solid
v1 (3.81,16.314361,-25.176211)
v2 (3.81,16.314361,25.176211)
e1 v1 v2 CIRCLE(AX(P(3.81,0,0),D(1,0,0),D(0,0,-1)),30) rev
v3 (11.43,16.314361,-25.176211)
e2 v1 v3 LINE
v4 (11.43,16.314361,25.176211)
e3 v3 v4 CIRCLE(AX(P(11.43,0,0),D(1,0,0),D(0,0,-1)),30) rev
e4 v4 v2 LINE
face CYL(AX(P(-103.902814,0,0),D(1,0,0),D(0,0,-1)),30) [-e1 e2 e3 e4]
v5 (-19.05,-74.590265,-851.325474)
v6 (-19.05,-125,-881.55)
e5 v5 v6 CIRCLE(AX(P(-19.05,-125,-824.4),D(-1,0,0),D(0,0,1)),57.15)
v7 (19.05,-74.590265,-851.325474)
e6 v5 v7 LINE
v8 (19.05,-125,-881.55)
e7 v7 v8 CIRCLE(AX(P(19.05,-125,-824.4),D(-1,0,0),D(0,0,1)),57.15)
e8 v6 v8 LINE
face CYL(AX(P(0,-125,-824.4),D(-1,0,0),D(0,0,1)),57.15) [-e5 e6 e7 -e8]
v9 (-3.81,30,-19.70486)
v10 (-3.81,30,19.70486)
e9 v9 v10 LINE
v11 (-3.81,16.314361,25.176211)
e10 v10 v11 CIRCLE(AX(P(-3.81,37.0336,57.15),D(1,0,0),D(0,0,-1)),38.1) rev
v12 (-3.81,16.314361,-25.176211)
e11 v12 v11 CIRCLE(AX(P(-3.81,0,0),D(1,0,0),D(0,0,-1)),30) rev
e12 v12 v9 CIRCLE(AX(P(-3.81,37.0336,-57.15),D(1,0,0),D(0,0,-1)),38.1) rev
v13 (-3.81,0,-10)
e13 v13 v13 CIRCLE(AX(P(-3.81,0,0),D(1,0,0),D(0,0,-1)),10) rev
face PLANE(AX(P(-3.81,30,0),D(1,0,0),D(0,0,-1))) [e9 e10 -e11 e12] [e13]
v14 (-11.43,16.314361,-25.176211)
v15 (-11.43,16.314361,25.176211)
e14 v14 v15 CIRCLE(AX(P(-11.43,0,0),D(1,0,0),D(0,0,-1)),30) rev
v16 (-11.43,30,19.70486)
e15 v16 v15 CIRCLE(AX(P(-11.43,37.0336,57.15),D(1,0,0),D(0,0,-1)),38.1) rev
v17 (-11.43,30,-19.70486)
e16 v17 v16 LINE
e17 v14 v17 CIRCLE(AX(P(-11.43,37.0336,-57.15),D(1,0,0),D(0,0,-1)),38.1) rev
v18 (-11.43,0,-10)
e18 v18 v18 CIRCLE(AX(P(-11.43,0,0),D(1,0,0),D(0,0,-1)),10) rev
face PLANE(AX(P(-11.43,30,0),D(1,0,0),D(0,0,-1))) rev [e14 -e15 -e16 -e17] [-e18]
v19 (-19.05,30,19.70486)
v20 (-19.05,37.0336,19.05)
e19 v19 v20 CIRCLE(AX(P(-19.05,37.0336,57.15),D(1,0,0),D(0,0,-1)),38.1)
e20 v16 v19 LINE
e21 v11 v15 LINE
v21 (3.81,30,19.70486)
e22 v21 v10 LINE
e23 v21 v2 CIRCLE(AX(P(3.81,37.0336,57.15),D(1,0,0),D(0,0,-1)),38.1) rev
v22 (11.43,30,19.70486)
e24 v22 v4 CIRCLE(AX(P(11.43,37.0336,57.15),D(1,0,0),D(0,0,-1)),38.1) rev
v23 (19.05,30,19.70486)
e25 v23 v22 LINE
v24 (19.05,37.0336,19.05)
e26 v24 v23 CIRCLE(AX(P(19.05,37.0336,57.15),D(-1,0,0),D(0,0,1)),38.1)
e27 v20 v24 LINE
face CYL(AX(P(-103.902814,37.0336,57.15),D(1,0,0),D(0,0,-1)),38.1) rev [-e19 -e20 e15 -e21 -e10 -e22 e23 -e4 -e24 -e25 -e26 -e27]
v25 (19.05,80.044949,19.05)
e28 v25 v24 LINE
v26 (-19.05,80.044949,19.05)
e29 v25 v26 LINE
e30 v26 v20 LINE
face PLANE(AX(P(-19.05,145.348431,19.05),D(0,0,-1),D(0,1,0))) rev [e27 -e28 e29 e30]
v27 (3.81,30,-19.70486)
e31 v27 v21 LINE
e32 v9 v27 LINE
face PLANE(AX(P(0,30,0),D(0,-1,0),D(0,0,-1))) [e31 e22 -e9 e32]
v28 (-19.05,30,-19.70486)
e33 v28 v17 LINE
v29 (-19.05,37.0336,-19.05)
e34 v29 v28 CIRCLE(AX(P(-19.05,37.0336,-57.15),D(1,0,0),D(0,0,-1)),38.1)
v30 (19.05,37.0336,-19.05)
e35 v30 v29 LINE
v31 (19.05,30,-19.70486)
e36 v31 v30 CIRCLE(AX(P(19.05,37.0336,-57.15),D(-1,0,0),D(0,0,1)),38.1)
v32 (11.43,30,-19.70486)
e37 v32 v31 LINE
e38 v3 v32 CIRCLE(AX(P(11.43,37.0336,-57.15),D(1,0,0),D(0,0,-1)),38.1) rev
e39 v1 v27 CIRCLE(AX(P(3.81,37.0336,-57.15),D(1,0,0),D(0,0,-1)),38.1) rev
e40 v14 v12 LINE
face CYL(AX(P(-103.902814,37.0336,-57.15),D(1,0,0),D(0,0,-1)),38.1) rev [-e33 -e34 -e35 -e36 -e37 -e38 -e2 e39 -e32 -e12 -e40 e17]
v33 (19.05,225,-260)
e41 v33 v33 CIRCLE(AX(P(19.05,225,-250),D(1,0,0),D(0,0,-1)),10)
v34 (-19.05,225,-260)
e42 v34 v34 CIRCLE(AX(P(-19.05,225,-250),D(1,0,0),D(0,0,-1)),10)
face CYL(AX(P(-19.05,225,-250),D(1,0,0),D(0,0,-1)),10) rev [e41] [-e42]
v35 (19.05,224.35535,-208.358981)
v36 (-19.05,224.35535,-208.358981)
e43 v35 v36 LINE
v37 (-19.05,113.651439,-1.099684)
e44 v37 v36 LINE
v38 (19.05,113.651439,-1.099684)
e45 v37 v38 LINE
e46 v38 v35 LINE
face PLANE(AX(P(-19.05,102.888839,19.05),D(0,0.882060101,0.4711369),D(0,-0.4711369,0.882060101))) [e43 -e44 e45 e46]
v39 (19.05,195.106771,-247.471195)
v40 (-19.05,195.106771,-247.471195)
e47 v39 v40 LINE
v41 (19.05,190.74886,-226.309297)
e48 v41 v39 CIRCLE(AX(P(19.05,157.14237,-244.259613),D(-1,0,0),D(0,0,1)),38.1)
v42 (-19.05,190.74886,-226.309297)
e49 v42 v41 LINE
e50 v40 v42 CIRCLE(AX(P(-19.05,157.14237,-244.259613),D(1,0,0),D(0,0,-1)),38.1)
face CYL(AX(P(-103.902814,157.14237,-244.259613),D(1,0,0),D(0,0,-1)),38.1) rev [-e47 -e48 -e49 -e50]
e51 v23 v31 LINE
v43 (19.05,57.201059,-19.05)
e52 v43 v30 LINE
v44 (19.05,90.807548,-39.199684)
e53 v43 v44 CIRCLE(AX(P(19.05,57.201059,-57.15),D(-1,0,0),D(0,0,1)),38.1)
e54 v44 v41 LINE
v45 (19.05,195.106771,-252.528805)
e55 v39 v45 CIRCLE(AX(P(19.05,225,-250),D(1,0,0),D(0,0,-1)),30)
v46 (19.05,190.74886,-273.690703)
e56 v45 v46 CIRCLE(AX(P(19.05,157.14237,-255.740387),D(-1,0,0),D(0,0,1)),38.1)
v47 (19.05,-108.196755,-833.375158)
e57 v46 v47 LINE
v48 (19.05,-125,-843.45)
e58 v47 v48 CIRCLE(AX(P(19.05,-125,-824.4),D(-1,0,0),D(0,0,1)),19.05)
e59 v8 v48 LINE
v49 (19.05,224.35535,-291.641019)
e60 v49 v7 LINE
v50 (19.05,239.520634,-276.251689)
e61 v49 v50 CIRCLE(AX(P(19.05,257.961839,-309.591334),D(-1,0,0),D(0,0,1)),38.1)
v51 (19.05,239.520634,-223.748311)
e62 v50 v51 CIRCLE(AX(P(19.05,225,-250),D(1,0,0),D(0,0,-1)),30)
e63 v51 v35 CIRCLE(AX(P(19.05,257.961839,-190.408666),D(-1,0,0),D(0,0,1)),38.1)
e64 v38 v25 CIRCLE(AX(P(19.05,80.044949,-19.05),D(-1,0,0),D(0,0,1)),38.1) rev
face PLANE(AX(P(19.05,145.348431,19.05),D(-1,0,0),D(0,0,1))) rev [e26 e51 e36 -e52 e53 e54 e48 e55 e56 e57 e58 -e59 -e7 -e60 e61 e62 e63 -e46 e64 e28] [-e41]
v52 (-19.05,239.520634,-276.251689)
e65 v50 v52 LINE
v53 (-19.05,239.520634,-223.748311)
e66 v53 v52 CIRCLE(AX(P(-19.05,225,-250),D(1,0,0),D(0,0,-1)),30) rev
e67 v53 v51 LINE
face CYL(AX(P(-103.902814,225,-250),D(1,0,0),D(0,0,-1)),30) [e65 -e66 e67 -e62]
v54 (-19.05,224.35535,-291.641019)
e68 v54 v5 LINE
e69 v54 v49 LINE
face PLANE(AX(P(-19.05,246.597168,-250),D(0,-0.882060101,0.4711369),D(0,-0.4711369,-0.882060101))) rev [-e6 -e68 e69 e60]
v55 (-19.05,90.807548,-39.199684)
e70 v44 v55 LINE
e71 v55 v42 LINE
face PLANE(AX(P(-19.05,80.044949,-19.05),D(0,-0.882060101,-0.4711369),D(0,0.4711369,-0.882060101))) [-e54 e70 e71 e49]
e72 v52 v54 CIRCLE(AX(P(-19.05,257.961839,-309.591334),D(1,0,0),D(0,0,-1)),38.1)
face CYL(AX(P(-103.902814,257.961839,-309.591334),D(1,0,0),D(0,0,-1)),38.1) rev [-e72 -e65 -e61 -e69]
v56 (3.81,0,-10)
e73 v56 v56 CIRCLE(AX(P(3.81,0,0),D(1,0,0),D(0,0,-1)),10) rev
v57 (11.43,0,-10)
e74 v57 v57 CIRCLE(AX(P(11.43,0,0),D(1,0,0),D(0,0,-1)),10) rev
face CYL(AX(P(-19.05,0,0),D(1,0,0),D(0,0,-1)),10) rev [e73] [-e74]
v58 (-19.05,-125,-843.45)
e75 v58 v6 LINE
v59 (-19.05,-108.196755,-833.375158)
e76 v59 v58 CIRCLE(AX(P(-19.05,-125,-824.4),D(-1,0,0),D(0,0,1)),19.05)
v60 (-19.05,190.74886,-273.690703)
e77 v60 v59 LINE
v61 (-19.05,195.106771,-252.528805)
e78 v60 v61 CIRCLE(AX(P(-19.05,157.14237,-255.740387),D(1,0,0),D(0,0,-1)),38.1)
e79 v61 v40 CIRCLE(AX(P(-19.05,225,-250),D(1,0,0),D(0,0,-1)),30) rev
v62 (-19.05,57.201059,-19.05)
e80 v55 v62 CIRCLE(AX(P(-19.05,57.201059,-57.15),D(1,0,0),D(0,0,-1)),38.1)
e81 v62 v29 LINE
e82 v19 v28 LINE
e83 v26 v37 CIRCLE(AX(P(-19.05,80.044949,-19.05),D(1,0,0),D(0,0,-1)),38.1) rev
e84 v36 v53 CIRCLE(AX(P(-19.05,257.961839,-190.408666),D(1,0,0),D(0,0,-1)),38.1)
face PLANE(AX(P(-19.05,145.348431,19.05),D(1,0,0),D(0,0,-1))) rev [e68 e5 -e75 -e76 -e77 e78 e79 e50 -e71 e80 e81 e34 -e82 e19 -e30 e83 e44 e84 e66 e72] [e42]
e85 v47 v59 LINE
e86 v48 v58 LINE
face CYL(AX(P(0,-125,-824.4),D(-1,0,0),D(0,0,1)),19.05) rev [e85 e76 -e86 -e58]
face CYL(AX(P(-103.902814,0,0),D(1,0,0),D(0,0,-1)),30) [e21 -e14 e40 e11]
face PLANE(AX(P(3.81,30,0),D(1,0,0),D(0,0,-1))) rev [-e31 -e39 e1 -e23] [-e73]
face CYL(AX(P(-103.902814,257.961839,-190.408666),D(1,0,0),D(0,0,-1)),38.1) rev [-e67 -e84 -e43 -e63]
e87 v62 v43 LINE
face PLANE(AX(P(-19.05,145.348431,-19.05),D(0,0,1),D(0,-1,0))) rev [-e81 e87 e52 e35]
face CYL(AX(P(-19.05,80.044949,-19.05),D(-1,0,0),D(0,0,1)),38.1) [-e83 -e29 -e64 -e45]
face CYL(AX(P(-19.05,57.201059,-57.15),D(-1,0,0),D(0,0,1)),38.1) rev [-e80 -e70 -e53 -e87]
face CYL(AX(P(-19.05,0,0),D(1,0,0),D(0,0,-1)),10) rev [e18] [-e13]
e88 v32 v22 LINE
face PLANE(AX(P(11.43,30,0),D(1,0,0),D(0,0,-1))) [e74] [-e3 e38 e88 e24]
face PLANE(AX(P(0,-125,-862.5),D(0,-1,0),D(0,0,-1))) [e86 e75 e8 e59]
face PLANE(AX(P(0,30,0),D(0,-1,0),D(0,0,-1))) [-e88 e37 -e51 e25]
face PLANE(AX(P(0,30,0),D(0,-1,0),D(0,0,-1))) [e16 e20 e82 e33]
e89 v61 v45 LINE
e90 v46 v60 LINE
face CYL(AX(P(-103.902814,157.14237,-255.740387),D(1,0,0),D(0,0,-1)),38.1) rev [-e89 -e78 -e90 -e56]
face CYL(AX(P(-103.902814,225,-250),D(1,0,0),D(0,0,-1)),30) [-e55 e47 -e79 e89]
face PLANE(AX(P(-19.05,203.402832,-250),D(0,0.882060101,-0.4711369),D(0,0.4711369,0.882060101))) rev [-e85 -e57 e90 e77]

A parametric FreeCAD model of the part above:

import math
import FreeCAD as App
import Part
import Sketcher
from FreeCAD import Vector
Q = App.Units.Quantity


def edges_at(feature, points):
    """Names of the edges that pass closest to the given points."""
    edges = feature.Shape.Edges
    near = lambda p: min(range(len(edges)), key=lambda i: edges[i].distToShape(Part.Vertex(*p))[0])
    return sorted({f"Edge{near(p) + 1}" for p in points})


def add_polygon(sketch, points):
    """Adds a closed chain of lines whose ends are joined by coincident constraints."""
    first, n = sketch.GeometryCount, len(points)
    for a, b in zip(points, points[1:] + points[:1]):
        sketch.addGeometry(Part.LineSegment(App.Vector(*a, 0), App.Vector(*b, 0)), False)
    for i in range(n):
        sketch.addConstraint(Sketcher.Constraint("Coincident", first + i, 2, first + (i + 1) % n, 1))

doc = App.newDocument("Part")
body = doc.addObject("PartDesign::Body", "Body")

# Sketch on XZ plane
sketch1 = body.newObject("Sketcher::SketchObject", "Sketch")
sketch1.AttachmentSupport = (doc.getObject("XZ_Plane"), [""])
sketch1.MapMode = "FlatFace"
add_polygon(sketch1, [(-19, -19), (-19, 19), (19, 19), (19, -19)])  # lines 0-3
sketch1.addConstraint(Sketcher.Constraint("Vertical", 0))
sketch1.addConstraint(Sketcher.Constraint("Horizontal", 1))
sketch1.addConstraint(Sketcher.Constraint("Vertical", 2))
sketch1.addConstraint(Sketcher.Constraint("Horizontal", 3))
sketch1.addConstraint(Sketcher.Constraint("Symmetric", 0, 2, 2, 2, -1, 1))
sketch1.addConstraint(Sketcher.Constraint("Equal", 3, 0))
sketch1.addConstraint(Sketcher.Constraint("DistanceX", 1, 1, 1, 2, Q("1.5 in")))

# Sketch on YZ plane
sketch2 = body.newObject("Sketcher::SketchObject", "Sketch001")
sketch2.AttachmentSupport = (doc.getObject("YZ_Plane"), [""])
sketch2.MapMode = "FlatFace"
sketch2.addGeometry(Part.LineSegment(Vector(0, 0, 0), Vector(91, 0, 0)), False)
sketch2.addGeometry(Part.LineSegment(Vector(91, 0, 0), Vector(225, -250, 0)), False)
sketch2.addGeometry(Part.LineSegment(Vector(225, -250, 0), Vector(-91, -842, 0)), False)
sketch2.addGeometry(Part.ArcOfCircle(Part.Circle(Vector(-125, -824, 0), Vector(0, 0, 1), 38), math.radians(-90), math.radians(-28)), False)
sketch2.addConstraint(Sketcher.Constraint("Coincident", 0, 2, 1, 1))
sketch2.addConstraint(Sketcher.Constraint("Coincident", 1, 2, 2, 1))
sketch2.addConstraint(Sketcher.Constraint("Tangent", 2, 2, 3, 2))
sketch2.addConstraint(Sketcher.Constraint("Horizontal", 0))
sketch2.addConstraint(Sketcher.Constraint("Coincident", 0, 1, -1, 1))
sketch2.addConstraint(Sketcher.Constraint("Radius", 3, Q("1.5 in")))
sketch2.addConstraint(Sketcher.Constraint("Distance", 1, Q("283.427399 mm")))
sketch2.addConstraint(Sketcher.Constraint("DistanceX", 3, 3, -1, 1, Q("125 mm")))
sketch2.addConstraint(Sketcher.Constraint("DistanceY", 3, 3, -1, 1, Q("824.4 mm")))
sketch2.addConstraint(Sketcher.Constraint("DistanceX", -1, 1, 1, 2, Q("225 mm")))
sketch2.addConstraint(Sketcher.Constraint("DistanceY", 1, 2, -1, 1, Q("250 mm")))
sketch2.addConstraint(Sketcher.Constraint("DistanceX", 3, 1, -1, 1, Q("125 mm")))
doc.recompute()

additivepipe = body.newObject("PartDesign::AdditivePipe", "AdditivePipe")
additivepipe.Profile = sketch1
additivepipe.Spine = (sketch2, ["Edge1", "Edge2", "Edge3", "Edge4"])
additivepipe.Transition = "Right corner"

# Sketch on YZ plane
sketch3 = body.newObject("Sketcher::SketchObject", "Sketch002")
sketch3.AttachmentSupport = (doc.getObject("YZ_Plane"), [""])
sketch3.MapMode = "FlatFace"
sketch3.AttachmentOffset = App.Placement(Vector(0, 0, 0.75 * 25.4), App.Rotation())
sketch3.addGeometry(Part.Circle(Vector(0, 0, 0), Vector(0, 0, 1), 10), False)
sketch3.addGeometry(Part.Circle(Vector(225, -250, 0), Vector(0, 0, 1), 10), False)
sketch3.addConstraint(Sketcher.Constraint("Coincident", 0, 3, -1, 1))
sketch3.addConstraint(Sketcher.Constraint("Equal", 0, 1))
sketch3.addConstraint(Sketcher.Constraint("Diameter", 0, Q("20 mm")))
sketch3.addConstraint(Sketcher.Constraint("DistanceX", -1, 1, 1, 3, Q("225 mm")))
sketch3.addConstraint(Sketcher.Constraint("DistanceY", 1, 3, -1, 1, Q("250 mm")))
pocket1 = body.newObject("PartDesign::Pocket", "Pocket")
pocket1.Profile = sketch3
pocket1.Type = "ThroughAll"

# Sketch on YZ plane
sketch4 = body.newObject("Sketcher::SketchObject", "Sketch003")
sketch4.AttachmentSupport = (doc.getObject("YZ_Plane"), [""])
sketch4.MapMode = "FlatFace"
sketch4.AttachmentOffset = App.Placement(Vector(0, 0, 0.75 * 25.4), App.Rotation())
sketch4.addGeometry(Part.Circle(Vector(0, 0, 0), Vector(0, 0, 1), 30), False)
sketch4.addGeometry(Part.Circle(Vector(0, 0, 0), Vector(0, 0, 1), 10), False)
sketch4.addGeometry(Part.Circle(Vector(225, -250, 0), Vector(0, 0, 1), 30), False)
sketch4.addGeometry(Part.Circle(Vector(225, -250, 0), Vector(0, 0, 1), 10), False)
sketch4.addConstraint(Sketcher.Constraint("Coincident", 0, 3, -1, 1))
sketch4.addConstraint(Sketcher.Constraint("Coincident", 1, 3, -1, 1))
sketch4.addConstraint(Sketcher.Constraint("Coincident", 3, 3, 2, 3))
sketch4.addConstraint(Sketcher.Constraint("Equal", 0, 2))
sketch4.addConstraint(Sketcher.Constraint("Equal", 1, 3))
sketch4.addConstraint(Sketcher.Constraint("Diameter", 0, Q("60 mm")))
sketch4.addConstraint(Sketcher.Constraint("Diameter", 1, Q("20 mm")))
sketch4.addConstraint(Sketcher.Constraint("DistanceX", -1, 1, 2, 3, Q("225 mm")))
sketch4.addConstraint(Sketcher.Constraint("DistanceY", 2, 3, -1, 1, Q("250 mm")))
pad1 = body.newObject("PartDesign::Pad", "Pad")
pad1.Profile = sketch4
pad1.Length = Q("1.5 in")
pad1.Reversed = True
doc.recompute()

fillet = body.newObject("PartDesign::Fillet", "Fillet")
fillet.Base = (pad1, edges_at(pad1, [
    (0, 230.884, -279.417),
    (0, 197.278, -261.467),
    (0, 80.045, -19.05),
    (0, 102.889, 19.05),
    (0, 23.175, 19.05),
    (0, 23.175, -19.05),
    (0, 230.884, -220.583),
    (0, 197.278, -238.533),
]))
fillet.Radius = Q("1.5 in")

# Sketch on XZ plane
sketch5 = body.newObject("Sketcher::SketchObject", "Sketch004")
sketch5.AttachmentSupport = (doc.getObject("XZ_Plane"), [""])
sketch5.MapMode = "FlatFace"
sketch5.AttachmentOffset = App.Placement(Vector(0, 0, 30), App.Rotation())
add_polygon(sketch5, [(19, -37), (19, 44), (11, 44), (11, -37)])  # lines 0-3
add_polygon(sketch5, [(4, -37), (4, 44), (-4, 44), (-4, -37)])  # lines 4-7
add_polygon(sketch5, [(-11, -37), (-11, 44), (-19, 44), (-19, -37)])  # lines 8-11
sketch5.addConstraint(Sketcher.Constraint("Vertical", 0))
sketch5.addConstraint(Sketcher.Constraint("Horizontal", 1))
sketch5.addConstraint(Sketcher.Constraint("Vertical", 2))
sketch5.addConstraint(Sketcher.Constraint("Horizontal", 3))
sketch5.addConstraint(Sketcher.Constraint("Vertical", 4))
sketch5.addConstraint(Sketcher.Constraint("Horizontal", 5))
sketch5.addConstraint(Sketcher.Constraint("Vertical", 6))
sketch5.addConstraint(Sketcher.Constraint("Horizontal", 7))
sketch5.addConstraint(Sketcher.Constraint("Vertical", 8))
sketch5.addConstraint(Sketcher.Constraint("Horizontal", 9))
sketch5.addConstraint(Sketcher.Constraint("Vertical", 10))
sketch5.addConstraint(Sketcher.Constraint("Horizontal", 11))
sketch5.addConstraint(Sketcher.Constraint("Symmetric", 1, 2, 8, 2, -2))
sketch5.addConstraint(Sketcher.Constraint("Symmetric", 3, 2, 10, 2, -2))
sketch5.addConstraint(Sketcher.Constraint("Horizontal", 1, 2, 4, 2))
sketch5.addConstraint(Sketcher.Constraint("Horizontal", 3, 2, 6, 2))
sketch5.addConstraint(Sketcher.Constraint("Equal", 3, 5))
sketch5.addConstraint(Sketcher.Constraint("DistanceX", 1, 2, 1, 1, Q("0.3 in")))
sketch5.addConstraint(Sketcher.Constraint("DistanceX", 4, 2, 1, 2, Q("0.3 in")))
sketch5.addConstraint(Sketcher.Constraint("DistanceX", 8, 2, 5, 2, Q("0.3 in")))
sketch5.addConstraint(Sketcher.Constraint("DistanceY", 0, 1, 0, 2, Q("80.541178 mm")))
sketch5.addConstraint(Sketcher.Constraint("DistanceY", -1, 1, 0, 2, Q("43.699265 mm")))
pocket2 = body.newObject("PartDesign::Pocket", "Pocket001")
pocket2.Profile = sketch5
pocket2.Length = 60

doc.recompute()
